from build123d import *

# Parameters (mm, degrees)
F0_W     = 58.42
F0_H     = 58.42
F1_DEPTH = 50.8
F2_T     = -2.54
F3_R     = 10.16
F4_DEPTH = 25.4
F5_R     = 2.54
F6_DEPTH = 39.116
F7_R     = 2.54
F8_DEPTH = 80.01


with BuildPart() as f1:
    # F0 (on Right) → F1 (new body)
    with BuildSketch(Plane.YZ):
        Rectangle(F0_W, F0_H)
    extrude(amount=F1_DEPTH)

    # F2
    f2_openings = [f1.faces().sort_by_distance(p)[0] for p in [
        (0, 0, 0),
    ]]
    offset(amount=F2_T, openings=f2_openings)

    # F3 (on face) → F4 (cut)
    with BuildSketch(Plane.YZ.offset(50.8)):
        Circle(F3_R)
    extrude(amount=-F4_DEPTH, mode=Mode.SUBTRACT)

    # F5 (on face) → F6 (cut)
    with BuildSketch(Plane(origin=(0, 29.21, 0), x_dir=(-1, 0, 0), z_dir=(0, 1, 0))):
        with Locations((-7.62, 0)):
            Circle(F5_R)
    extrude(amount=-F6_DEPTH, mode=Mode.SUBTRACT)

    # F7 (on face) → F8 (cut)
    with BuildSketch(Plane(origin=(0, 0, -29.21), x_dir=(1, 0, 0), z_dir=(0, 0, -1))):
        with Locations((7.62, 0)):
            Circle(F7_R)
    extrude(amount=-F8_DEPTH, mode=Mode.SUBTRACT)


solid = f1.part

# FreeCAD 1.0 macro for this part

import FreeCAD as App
import Part
import Sketcher

V = App.Vector
Q = App.Units.Quantity


def faces_at(feature, points):
    """Names of the faces that lie closest to the given points."""
    faces = feature.Shape.Faces
    near = lambda p: min(range(len(faces)), key=lambda i: faces[i].distToShape(Part.Vertex(*p))[0])
    return sorted({f"Face{near(p) + 1}" for p in points})


def add_polygon(sketch, points):
    """Adds a closed chain of lines whose ends are joined by coincident constraints."""
    first, n = sketch.GeometryCount, len(points)
    for a, b in zip(points, points[1:] + points[:1]):
        sketch.addGeometry(Part.LineSegment(App.Vector(*a, 0), App.Vector(*b, 0)), False)
    for i in range(n):
        sketch.addConstraint(Sketcher.Constraint("Coincident", first + i, 2, first + (i + 1) % n, 1))

doc = App.newDocument("Part")
params = doc.addObject("Spreadsheet::Sheet", "Params")
for row, (alias, value) in enumerate([
    ("sketch1_width", "2.3 in"),
    ("pad1_length", "2 in"),
    ("thickness_wall", "0.1 in"),
    ("sketch2_diameter", "0.8 in"),
    ("pocket1_length", "1 in"),
    ("sketch3_diameter", "0.2 in"),
    ("pocket2_length", "1.54 in"),
    ("sketch4_diameter", "0.2 in"),
    ("pocket3_length", "3.15 in"),
], start=1):
    params.set(f"A{row}", alias)
    params.set(f"B{row}", "=" + value)
    params.setAlias(f"B{row}", alias)

body = doc.addObject("PartDesign::Body", "Body")

# Sketch on YZ plane
sketch1 = doc.addObject("Sketcher::SketchObject", "Sketch")
body.addObject(sketch1)
sketch1.AttachmentSupport = (doc.YZ_Plane, [""])
sketch1.MapMode = "FlatFace"
add_polygon(sketch1, [(-29, 29), (-29, -29), (29, -29), (29, 29)])  # lines 0-3
sketch1.addConstraint([
    Sketcher.Constraint("Vertical", 0),
    Sketcher.Constraint("Horizontal", 1),
    Sketcher.Constraint("Vertical", 2),
    Sketcher.Constraint("Horizontal", 3),
    Sketcher.Constraint("Symmetric", 0, 2, 2, 2, -1, 1),
    Sketcher.Constraint("Equal", 3, 0),
    Sketcher.Constraint("DistanceX", 1, 1, 1, 2, Q("2.3 in")),
])
sketch1.setExpression("Constraints[10]", "Params.sketch1_width")
pad1 = doc.addObject("PartDesign::Pad", "Pad")
body.addObject(pad1)
pad1.Profile = sketch1
pad1.setExpression("Length", "Params.pad1_length")
doc.recompute()

thickness = doc.addObject("PartDesign::Thickness", "Thickness")
body.addObject(thickness)
thickness.Base = (pad1, faces_at(pad1, [(0, 0, 0)]))
thickness.setExpression("Value", "Params.thickness_wall")
thickness.Reversed = True
thickness.Join = "Arc"

# Sketch on YZ plane
sketch2 = doc.addObject("Sketcher::SketchObject", "Sketch001")
body.addObject(sketch2)
sketch2.AttachmentSupport = (doc.YZ_Plane, [""])
sketch2.MapMode = "FlatFace"
sketch2.AttachmentOffset = App.Placement(V(0, 0, 2 * 25.4), App.Rotation())
sketch2.addGeometry(Part.Circle(V(0, 0, 0), V(0, 0, 1), 10), False)
sketch2.addConstraint([
    Sketcher.Constraint("Coincident", 0, 3, -1, 1),
    Sketcher.Constraint("Diameter", 0, Q("0.8 in")),
])
sketch2.setExpression("Constraints[1]", "Params.sketch2_diameter")
pocket1 = doc.addObject("PartDesign::Pocket", "Pocket")
body.addObject(pocket1)
pocket1.Profile = sketch2
pocket1.setExpression("Length", "Params.pocket1_length")

# Sketch on XZ plane
sketch3 = doc.addObject("Sketcher::SketchObject", "Sketch002")
body.addObject(sketch3)
sketch3.AttachmentSupport = (doc.XZ_Plane, [""])
sketch3.MapMode = "FlatFace"
sketch3.AttachmentOffset = App.Placement(V(0, 0, -1.15 * 25.4), App.Rotation())
sketch3.addGeometry(Part.Circle(V(7.6, 0, 0), V(0, 0, 1), 2.5), False)
sketch3.addConstraint([
    Sketcher.Constraint("PointOnObject", 0, 3, -1),
    Sketcher.Constraint("Diameter", 0, Q("0.2 in")),
    Sketcher.Constraint("DistanceX", -1, 1, 0, 3, Q("0.3 in")),
])
sketch3.setExpression("Constraints[1]", "Params.sketch3_diameter")
pocket2 = doc.addObject("PartDesign::Pocket", "Pocket001")
body.addObject(pocket2)
pocket2.Profile = sketch3
pocket2.setExpression("Length", "Params.pocket2_length")
pocket2.Reversed = True

# Sketch on XY plane
sketch4 = doc.addObject("Sketcher::SketchObject", "Sketch003")
body.addObject(sketch4)
sketch4.AttachmentSupport = (doc.XY_Plane, [""])
sketch4.MapMode = "FlatFace"
sketch4.AttachmentOffset = App.Placement(V(0, 0, -1.15 * 25.4), App.Rotation())
sketch4.addGeometry(Part.Circle(V(7.6, 0, 0), V(0, 0, 1), 2.5), False)
sketch4.addConstraint([
    Sketcher.Constraint("PointOnObject", 0, 3, -1),
    Sketcher.Constraint("Diameter", 0, Q("0.2 in")),
    Sketcher.Constraint("DistanceX", -1, 1, 0, 3, Q("0.3 in")),
])
sketch4.setExpression("Constraints[1]", "Params.sketch4_diameter")
pocket3 = doc.addObject("PartDesign::Pocket", "Pocket002")
body.addObject(pocket3)
pocket3.Profile = sketch4
pocket3.setExpression("Length", "Params.pocket3_length")
pocket3.Reversed = True

doc.recompute()
